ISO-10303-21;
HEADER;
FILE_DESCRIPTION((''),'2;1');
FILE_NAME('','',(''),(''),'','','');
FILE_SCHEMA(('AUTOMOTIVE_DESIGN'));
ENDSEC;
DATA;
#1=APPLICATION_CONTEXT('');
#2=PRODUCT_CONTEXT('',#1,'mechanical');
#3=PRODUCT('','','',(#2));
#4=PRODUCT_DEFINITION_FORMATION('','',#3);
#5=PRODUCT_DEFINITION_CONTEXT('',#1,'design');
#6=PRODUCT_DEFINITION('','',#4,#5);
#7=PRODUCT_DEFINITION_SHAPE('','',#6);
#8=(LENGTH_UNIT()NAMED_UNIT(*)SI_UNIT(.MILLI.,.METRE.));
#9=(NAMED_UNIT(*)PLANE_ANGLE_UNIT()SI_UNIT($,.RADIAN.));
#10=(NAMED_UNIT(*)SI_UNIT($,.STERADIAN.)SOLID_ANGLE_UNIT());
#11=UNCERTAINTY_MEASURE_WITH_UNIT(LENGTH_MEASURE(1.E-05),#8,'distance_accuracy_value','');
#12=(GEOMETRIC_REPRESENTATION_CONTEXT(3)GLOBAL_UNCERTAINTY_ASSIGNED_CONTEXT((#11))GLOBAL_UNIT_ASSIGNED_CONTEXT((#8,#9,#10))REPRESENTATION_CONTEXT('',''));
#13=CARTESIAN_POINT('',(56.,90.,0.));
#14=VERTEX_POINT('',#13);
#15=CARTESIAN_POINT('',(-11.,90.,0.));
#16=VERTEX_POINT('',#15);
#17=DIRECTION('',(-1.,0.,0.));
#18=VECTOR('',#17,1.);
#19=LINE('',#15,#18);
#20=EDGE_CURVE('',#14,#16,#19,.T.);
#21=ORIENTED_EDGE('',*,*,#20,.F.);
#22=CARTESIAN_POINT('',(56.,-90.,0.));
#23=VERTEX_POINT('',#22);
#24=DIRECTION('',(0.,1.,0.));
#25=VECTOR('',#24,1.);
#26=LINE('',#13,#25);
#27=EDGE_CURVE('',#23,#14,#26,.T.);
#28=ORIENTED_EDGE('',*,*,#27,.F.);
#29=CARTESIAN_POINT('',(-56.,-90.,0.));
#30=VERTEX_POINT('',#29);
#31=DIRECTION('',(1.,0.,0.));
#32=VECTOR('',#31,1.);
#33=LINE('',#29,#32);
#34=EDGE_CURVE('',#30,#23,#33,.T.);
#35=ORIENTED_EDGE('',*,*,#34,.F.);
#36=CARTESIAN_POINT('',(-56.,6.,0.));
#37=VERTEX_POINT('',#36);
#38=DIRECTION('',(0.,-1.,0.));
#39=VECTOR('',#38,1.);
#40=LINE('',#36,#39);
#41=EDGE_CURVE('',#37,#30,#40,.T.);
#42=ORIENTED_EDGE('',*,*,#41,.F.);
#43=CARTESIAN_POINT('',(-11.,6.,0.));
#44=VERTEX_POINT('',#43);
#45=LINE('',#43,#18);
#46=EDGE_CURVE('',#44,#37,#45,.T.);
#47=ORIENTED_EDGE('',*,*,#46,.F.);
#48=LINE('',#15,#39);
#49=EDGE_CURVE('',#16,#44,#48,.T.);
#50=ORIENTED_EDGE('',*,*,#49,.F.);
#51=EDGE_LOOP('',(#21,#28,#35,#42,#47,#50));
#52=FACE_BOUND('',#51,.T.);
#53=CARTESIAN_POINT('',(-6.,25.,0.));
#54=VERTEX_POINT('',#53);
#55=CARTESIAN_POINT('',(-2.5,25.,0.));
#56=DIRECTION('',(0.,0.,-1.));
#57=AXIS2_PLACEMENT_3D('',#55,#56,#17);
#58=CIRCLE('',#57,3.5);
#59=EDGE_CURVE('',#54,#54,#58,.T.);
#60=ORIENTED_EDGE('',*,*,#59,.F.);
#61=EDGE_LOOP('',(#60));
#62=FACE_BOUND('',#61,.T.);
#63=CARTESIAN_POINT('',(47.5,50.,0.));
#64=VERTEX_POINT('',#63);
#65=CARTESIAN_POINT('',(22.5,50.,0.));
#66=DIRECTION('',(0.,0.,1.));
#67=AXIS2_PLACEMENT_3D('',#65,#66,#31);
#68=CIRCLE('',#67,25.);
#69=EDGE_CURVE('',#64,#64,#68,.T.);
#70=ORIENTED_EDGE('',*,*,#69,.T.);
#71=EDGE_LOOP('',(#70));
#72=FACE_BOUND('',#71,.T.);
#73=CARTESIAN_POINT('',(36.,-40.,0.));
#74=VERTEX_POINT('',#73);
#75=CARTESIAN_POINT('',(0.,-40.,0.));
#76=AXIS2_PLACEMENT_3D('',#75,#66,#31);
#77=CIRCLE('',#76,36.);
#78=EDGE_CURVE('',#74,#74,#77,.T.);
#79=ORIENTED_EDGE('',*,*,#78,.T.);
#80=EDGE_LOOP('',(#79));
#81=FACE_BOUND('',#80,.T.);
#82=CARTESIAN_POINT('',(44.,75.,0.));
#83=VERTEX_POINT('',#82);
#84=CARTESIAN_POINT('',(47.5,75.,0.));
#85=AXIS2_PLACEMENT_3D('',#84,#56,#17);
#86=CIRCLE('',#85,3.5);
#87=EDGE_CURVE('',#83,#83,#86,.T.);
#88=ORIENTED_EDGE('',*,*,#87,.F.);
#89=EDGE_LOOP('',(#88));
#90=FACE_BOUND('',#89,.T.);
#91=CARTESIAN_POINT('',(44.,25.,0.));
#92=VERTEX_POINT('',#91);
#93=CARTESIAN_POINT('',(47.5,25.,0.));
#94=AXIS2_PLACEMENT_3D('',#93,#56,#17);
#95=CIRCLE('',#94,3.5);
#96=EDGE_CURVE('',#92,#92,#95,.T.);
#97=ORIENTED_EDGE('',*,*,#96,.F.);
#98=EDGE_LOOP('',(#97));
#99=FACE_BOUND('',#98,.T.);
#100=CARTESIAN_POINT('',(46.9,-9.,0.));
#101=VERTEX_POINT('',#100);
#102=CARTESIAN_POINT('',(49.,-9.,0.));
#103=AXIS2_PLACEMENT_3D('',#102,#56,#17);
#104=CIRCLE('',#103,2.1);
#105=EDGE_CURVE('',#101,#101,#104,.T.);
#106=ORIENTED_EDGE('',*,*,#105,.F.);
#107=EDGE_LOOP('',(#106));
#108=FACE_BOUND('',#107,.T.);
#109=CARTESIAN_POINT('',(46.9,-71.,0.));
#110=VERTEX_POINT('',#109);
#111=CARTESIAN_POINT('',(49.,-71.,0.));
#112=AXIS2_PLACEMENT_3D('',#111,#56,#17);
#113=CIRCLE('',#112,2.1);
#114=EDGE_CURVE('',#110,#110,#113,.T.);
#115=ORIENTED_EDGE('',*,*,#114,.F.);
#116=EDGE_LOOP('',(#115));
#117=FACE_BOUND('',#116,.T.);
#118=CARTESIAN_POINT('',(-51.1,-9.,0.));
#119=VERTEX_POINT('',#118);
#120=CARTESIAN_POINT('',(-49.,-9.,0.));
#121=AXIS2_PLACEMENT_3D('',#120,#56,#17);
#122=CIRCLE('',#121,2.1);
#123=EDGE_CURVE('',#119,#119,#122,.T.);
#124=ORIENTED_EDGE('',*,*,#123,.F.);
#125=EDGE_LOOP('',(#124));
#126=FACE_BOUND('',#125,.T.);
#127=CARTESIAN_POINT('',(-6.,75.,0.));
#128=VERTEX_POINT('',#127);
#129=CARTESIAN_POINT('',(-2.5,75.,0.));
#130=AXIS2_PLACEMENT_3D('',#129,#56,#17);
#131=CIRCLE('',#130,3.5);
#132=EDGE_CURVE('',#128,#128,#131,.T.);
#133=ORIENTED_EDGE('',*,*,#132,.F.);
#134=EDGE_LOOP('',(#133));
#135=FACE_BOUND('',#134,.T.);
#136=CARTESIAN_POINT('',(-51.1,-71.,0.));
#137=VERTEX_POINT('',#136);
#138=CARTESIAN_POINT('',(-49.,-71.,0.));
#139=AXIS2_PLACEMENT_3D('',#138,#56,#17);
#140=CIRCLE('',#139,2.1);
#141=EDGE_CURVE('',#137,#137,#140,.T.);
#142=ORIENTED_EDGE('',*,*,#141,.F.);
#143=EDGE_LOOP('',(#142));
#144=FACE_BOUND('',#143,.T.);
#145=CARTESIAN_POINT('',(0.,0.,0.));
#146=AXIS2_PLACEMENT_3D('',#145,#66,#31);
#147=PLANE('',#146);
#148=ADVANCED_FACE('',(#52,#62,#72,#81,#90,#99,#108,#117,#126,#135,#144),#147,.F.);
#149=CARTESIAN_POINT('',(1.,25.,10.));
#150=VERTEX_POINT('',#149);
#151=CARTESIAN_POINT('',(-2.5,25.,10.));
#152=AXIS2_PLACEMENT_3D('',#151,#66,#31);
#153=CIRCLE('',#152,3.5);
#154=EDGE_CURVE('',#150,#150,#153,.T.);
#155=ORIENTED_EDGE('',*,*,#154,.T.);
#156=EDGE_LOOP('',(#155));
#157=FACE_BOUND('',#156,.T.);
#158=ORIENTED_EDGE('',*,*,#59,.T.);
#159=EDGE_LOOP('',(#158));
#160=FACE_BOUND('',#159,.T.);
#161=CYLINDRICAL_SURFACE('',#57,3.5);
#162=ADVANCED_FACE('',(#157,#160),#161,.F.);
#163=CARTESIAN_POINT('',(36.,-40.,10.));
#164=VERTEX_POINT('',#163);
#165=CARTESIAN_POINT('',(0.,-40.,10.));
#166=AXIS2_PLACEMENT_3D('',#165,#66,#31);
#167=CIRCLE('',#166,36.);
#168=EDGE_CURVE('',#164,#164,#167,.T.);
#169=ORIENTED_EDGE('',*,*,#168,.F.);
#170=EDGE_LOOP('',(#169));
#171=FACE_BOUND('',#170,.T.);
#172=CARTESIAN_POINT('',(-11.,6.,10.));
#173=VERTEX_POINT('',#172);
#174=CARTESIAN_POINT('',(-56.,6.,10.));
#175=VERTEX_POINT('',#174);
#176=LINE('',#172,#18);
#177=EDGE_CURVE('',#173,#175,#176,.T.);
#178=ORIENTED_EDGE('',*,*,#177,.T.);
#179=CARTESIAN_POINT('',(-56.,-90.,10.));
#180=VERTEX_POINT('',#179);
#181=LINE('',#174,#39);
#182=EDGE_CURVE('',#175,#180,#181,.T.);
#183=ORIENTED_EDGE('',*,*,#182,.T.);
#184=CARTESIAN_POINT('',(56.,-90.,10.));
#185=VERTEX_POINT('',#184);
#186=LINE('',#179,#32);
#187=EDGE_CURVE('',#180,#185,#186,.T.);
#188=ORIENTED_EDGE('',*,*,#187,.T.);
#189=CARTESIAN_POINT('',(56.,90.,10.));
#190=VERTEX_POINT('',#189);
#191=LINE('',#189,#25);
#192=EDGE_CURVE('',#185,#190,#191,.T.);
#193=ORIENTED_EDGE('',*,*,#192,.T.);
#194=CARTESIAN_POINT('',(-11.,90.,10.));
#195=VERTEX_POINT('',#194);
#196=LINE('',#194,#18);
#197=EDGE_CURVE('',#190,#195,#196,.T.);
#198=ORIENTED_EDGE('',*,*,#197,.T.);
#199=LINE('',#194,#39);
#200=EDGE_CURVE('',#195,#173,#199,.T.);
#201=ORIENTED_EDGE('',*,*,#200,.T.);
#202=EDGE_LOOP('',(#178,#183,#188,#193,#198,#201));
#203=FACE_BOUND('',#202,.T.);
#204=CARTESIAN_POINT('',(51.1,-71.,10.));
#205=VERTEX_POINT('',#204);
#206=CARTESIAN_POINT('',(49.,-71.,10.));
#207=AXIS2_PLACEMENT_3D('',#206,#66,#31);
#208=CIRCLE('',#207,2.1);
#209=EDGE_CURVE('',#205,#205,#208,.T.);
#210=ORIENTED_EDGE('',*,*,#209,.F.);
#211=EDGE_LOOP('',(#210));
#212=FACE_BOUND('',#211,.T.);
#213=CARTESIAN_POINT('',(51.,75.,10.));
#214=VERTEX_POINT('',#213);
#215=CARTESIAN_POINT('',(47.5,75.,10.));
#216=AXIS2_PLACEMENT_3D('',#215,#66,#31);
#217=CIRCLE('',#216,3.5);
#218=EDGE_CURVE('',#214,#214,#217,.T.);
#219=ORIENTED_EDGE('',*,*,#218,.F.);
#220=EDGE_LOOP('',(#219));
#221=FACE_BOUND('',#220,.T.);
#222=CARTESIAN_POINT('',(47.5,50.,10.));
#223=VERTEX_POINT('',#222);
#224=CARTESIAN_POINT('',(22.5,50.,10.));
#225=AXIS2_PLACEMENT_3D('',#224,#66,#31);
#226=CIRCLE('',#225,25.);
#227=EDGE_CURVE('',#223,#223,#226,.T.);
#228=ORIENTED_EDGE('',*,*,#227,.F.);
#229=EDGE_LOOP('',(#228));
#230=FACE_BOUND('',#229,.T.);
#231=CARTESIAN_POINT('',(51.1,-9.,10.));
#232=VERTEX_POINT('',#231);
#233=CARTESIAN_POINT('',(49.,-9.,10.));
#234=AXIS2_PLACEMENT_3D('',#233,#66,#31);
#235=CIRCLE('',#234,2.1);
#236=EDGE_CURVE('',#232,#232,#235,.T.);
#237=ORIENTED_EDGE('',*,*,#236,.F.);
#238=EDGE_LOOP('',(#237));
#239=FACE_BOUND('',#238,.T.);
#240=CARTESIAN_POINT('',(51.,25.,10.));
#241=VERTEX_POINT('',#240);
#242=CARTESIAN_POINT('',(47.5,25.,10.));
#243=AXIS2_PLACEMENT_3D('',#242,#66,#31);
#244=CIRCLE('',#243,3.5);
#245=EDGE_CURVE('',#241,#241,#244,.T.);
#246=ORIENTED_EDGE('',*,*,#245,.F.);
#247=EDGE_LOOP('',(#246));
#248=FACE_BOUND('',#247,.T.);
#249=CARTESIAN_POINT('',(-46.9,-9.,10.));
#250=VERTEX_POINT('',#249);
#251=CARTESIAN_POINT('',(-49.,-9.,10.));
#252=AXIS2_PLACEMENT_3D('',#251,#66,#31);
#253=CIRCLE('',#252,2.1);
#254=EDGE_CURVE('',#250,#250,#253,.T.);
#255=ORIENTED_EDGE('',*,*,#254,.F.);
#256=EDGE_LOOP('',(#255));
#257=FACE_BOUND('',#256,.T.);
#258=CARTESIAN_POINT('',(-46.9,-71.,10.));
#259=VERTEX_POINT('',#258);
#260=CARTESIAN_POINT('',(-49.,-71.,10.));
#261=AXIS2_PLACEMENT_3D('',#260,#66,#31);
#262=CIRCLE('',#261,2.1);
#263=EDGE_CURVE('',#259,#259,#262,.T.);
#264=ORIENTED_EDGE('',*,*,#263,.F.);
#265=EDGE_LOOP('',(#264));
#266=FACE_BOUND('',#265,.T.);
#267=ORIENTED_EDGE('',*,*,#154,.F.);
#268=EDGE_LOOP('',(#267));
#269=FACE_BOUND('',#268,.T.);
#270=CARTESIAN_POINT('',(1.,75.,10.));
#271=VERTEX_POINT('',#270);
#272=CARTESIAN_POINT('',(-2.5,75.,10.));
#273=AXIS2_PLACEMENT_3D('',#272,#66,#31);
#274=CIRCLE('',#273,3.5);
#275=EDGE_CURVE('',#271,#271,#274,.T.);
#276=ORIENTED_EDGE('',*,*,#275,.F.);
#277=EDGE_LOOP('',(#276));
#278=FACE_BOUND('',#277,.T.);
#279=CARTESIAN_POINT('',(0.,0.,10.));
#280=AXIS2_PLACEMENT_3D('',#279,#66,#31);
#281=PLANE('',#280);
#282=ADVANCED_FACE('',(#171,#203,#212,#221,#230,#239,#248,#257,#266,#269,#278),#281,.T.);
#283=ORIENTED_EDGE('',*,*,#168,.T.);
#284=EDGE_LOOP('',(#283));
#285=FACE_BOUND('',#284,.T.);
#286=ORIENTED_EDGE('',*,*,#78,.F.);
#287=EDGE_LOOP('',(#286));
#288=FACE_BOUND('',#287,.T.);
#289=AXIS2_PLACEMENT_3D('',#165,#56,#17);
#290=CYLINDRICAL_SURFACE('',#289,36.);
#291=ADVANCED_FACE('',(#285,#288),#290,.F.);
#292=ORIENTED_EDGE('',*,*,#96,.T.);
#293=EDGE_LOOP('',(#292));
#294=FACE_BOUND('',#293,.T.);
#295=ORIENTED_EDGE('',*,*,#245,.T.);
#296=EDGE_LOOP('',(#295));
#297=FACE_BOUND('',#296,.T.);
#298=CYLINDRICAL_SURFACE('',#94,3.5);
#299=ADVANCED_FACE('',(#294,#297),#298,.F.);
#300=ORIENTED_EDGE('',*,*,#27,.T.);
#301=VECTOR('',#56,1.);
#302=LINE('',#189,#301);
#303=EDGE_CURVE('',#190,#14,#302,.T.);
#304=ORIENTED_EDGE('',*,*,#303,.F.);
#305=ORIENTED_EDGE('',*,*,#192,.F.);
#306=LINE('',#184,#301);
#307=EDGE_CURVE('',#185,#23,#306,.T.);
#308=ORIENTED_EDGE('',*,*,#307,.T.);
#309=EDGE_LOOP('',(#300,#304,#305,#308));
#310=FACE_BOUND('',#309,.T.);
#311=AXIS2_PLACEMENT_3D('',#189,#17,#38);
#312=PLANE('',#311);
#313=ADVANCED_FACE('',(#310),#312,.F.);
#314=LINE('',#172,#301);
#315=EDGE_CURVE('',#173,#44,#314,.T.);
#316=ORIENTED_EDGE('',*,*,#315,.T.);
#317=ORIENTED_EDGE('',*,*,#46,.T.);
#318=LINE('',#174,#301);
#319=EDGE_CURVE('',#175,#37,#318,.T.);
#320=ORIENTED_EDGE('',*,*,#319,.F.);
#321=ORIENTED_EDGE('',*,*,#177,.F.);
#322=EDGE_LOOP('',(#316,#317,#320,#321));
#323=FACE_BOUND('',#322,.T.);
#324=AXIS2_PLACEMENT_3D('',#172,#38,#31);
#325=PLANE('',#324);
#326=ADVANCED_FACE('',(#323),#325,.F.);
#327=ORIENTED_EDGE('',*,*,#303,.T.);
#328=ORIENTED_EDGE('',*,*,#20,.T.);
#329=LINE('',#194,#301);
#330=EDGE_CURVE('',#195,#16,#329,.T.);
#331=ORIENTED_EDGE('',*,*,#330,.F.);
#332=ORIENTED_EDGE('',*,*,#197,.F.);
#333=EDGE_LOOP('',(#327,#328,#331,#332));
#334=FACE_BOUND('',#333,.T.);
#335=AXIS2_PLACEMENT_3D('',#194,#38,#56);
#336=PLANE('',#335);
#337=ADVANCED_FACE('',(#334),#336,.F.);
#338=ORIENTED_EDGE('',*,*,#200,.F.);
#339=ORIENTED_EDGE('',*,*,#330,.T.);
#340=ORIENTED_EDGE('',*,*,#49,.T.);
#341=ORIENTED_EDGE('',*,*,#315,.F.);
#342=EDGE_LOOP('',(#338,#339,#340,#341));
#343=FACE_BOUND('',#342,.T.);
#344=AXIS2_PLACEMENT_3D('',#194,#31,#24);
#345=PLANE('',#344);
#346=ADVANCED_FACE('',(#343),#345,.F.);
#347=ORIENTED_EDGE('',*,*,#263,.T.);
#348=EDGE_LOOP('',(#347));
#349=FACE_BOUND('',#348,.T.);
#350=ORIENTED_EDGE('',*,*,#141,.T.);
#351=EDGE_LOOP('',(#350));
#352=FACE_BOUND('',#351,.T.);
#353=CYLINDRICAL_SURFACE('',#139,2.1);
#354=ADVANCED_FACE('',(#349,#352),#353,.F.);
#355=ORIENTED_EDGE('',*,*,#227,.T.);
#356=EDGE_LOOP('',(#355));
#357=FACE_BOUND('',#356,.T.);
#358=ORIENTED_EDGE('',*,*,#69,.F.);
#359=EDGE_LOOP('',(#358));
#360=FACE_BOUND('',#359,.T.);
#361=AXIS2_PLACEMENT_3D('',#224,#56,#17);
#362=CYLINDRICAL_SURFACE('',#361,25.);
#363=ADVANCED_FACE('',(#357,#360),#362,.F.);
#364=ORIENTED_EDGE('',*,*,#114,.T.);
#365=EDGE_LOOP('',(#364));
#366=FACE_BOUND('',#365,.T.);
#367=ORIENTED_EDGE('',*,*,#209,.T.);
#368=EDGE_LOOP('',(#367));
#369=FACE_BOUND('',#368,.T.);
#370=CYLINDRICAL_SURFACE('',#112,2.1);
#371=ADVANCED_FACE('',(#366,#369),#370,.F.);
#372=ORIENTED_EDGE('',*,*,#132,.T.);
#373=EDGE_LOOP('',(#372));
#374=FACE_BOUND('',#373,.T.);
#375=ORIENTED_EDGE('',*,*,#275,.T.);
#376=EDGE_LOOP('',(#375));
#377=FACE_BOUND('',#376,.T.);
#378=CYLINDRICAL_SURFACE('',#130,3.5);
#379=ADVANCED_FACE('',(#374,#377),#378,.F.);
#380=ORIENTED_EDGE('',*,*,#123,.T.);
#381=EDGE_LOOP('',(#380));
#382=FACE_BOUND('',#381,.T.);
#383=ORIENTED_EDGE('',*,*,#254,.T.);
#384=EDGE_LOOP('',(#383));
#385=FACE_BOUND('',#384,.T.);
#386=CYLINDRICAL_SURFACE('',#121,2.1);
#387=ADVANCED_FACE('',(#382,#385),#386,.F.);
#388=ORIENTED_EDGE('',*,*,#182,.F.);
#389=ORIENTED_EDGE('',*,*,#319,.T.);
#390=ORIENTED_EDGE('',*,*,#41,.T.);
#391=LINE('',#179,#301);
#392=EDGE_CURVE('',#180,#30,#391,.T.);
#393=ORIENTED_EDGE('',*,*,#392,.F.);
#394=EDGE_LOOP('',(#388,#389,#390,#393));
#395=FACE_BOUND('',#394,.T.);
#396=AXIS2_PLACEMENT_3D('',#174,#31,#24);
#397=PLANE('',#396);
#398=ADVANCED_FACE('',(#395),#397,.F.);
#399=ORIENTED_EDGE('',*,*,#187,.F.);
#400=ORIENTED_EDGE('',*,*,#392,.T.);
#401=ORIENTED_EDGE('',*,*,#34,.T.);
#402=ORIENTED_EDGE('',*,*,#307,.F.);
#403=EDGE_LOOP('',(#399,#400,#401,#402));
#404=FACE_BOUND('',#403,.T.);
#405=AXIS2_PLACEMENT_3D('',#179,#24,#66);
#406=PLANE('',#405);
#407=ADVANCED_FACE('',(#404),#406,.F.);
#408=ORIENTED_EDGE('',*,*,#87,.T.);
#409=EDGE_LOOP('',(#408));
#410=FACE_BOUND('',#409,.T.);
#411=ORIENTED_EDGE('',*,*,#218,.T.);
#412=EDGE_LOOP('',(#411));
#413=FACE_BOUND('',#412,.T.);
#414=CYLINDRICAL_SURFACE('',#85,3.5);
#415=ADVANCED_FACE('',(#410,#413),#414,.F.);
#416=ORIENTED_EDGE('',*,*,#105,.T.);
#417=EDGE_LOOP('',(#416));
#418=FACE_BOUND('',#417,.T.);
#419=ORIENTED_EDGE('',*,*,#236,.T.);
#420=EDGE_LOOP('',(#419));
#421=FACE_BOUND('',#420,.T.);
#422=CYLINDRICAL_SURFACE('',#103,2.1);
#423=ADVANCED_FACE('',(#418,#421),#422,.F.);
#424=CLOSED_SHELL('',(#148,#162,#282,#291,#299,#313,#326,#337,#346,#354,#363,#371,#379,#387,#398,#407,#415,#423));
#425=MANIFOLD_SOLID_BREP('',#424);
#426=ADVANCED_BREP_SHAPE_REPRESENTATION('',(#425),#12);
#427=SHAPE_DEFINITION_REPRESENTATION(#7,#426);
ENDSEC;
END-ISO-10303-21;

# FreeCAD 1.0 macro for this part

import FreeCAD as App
import Part
import Sketcher
from FreeCAD import Vector

doc = App.newDocument("Part")
body = doc.addObject("PartDesign::Body", "Body")

# Sketch on XY plane
sketch1 = body.newObject("Sketcher::SketchObject", "Sketch")
sketch1.AttachmentSupport = (doc.getObject("XY_Plane"), [""])
sketch1.MapMode = "FlatFace"
sketch1.addGeometry(Part.LineSegment(Vector(56, 90, 0), Vector(-11, 90, 0)), False)
sketch1.addGeometry(Part.LineSegment(Vector(-11, 90, 0), Vector(-11, 6, 0)), False)
sketch1.addGeometry(Part.LineSegment(Vector(-11, 6, 0), Vector(-56, 6, 0)), False)
sketch1.addGeometry(Part.LineSegment(Vector(-56, 6, 0), Vector(-56, -90, 0)), False)
sketch1.addGeometry(Part.LineSegment(Vector(-56, -90, 0), Vector(56, -90, 0)), False)
sketch1.addGeometry(Part.LineSegment(Vector(56, -90, 0), Vector(56, 90, 0)), False)
sketch1.addGeometry(Part.Circle(Vector(0, -40, 0), Vector(0, 0, 1), 36), False)
sketch1.addGeometry(Part.Circle(Vector(22.5, 50, 0), Vector(0, 0, 1), 25), False)
sketch1.addConstraint(Sketcher.Constraint("Coincident", 0, 2, 1, 1))
sketch1.addConstraint(Sketcher.Constraint("Coincident", 1, 2, 2, 1))
sketch1.addConstraint(Sketcher.Constraint("Coincident", 2, 2, 3, 1))
sketch1.addConstraint(Sketcher.Constraint("Coincident", 3, 2, 4, 1))
sketch1.addConstraint(Sketcher.Constraint("Coincident", 4, 2, 5, 1))
sketch1.addConstraint(Sketcher.Constraint("Coincident", 5, 2, 0, 1))
sketch1.addConstraint(Sketcher.Constraint("Horizontal", 0))
sketch1.addConstraint(Sketcher.Constraint("Vertical", 1))
sketch1.addConstraint(Sketcher.Constraint("Horizontal", 2))
sketch1.addConstraint(Sketcher.Constraint("Vertical", 3))
sketch1.addConstraint(Sketcher.Constraint("Horizontal", 4))
sketch1.addConstraint(Sketcher.Constraint("Vertical", 5))
sketch1.addConstraint(Sketcher.Constraint("Symmetric", 3, 2, 5, 2, -1, 1))
sketch1.addConstraint(Sketcher.Constraint("PointOnObject", 6, 3, -2))
sketch1.addConstraint(Sketcher.Constraint("Diameter", 6, 72.0))
sketch1.addConstraint(Sketcher.Constraint("Diameter", 7, 50.0))
sketch1.addConstraint(Sketcher.Constraint("DistanceX", 0, 2, 0, 1, 67.0))
sketch1.addConstraint(Sketcher.Constraint("DistanceX", 2, 2, 2, 1, 45.0))
sketch1.addConstraint(Sketcher.Constraint("DistanceY", 1, 2, 1, 1, 84.0))
sketch1.addConstraint(Sketcher.Constraint("DistanceY", 3, 2, 3, 1, 96.0))
sketch1.addConstraint(Sketcher.Constraint("DistanceY", 6, 3, -1, 1, 40.0))
sketch1.addConstraint(Sketcher.Constraint("DistanceY", -1, 1, 7, 3, 50.0))
sketch1.addConstraint(Sketcher.Constraint("DistanceX", -1, 1, 7, 3, 22.5))
pad1 = body.newObject("PartDesign::Pad", "Pad")
pad1.Profile = sketch1
pad1.Length = 10

# Sketch on XY plane
sketch2 = body.newObject("Sketcher::SketchObject", "Sketch001")
sketch2.AttachmentSupport = (doc.getObject("XY_Plane"), [""])
sketch2.MapMode = "FlatFace"
sketch2.addGeometry(Part.Circle(Vector(49, -9, 0), Vector(0, 0, 1), 2.1), False)
sketch2.addGeometry(Part.Circle(Vector(-49, -9, 0), Vector(0, 0, 1), 2.1), False)
sketch2.addGeometry(Part.Circle(Vector(-49, -71, 0), Vector(0, 0, 1), 2.1), False)
sketch2.addGeometry(Part.Circle(Vector(49, -71, 0), Vector(0, 0, 1), 2.1), False)
sketch2.addConstraint(Sketcher.Constraint("Equal", 0, 1))
sketch2.addConstraint(Sketcher.Constraint("Equal", 1, 2))
sketch2.addConstraint(Sketcher.Constraint("Equal", 2, 3))
sketch2.addConstraint(Sketcher.Constraint("Symmetric", 0, 3, 1, 3, -2))
sketch2.addConstraint(Sketcher.Constraint("Symmetric", 2, 3, 3, 3, -2))
sketch2.addConstraint(Sketcher.Constraint("Vertical", 1, 3, 2, 3))
sketch2.addConstraint(Sketcher.Constraint("Diameter", 0, 4.2))
sketch2.addConstraint(Sketcher.Constraint("DistanceX", -1, 1, 0, 3, 49.0))
sketch2.addConstraint(Sketcher.Constraint("DistanceY", 0, 3, -1, 1, 9.0))
sketch2.addConstraint(Sketcher.Constraint("DistanceY", 2, 3, -1, 1, 71.0))
doc.recompute()
hole = body.newObject("PartDesign::Hole", "Hole")
hole.Profile = sketch2
hole.ThreadType = "None"
hole.Diameter = 4.2
hole.DepthType = "Dimension"
hole.Depth = 12.4
hole.DrillPoint = "Angled"
hole.DrillPointAngle = 118
hole.Reversed = True

# Sketch on XY plane
sketch3 = body.newObject("Sketcher::SketchObject", "Sketch002")
sketch3.AttachmentSupport = (doc.getObject("XY_Plane"), [""])
sketch3.MapMode = "FlatFace"
sketch3.addGeometry(Part.Circle(Vector(47.5, 25, 0), Vector(0, 0, 1), 3.5), False)
sketch3.addGeometry(Part.Circle(Vector(47.5, 75, 0), Vector(0, 0, 1), 3.5), False)
sketch3.addGeometry(Part.Circle(Vector(-2.5, 75, 0), Vector(0, 0, 1), 3.5), False)
sketch3.addGeometry(Part.Circle(Vector(-2.5, 25, 0), Vector(0, 0, 1), 3.5), False)
sketch3.addConstraint(Sketcher.Constraint("Equal", 0, 1))
sketch3.addConstraint(Sketcher.Constraint("Equal", 1, 2))
sketch3.addConstraint(Sketcher.Constraint("Equal", 2, 3))
sketch3.addConstraint(Sketcher.Constraint("Horizontal", 1, 3, 2, 3))
sketch3.addConstraint(Sketcher.Constraint("Horizontal", 0, 3, 3, 3))
sketch3.addConstraint(Sketcher.Constraint("Vertical", 0, 3, 1, 3))
sketch3.addConstraint(Sketcher.Constraint("Vertical", 2, 3, 3, 3))
sketch3.addConstraint(Sketcher.Constraint("Diameter", 0, 7.0))
sketch3.addConstraint(Sketcher.Constraint("DistanceY", -1, 1, 0, 3, 25.0))
sketch3.addConstraint(Sketcher.Constraint("DistanceY", -1, 1, 1, 3, 75.0))
sketch3.addConstraint(Sketcher.Constraint("DistanceX", 2, 3, 1, 3, 50.0))
sketch3.addConstraint(Sketcher.Constraint("DistanceX", -1, 1, 0, 3, 47.5))
doc.recompute()
hole2 = body.newObject("PartDesign::Hole", "Hole001")
hole2.Profile = sketch3
hole2.ThreadType = "None"
hole2.Diameter = 7
hole2.DepthType = "Dimension"
hole2.Depth = 12.4
hole2.DrillPoint = "Angled"
hole2.DrillPointAngle = 118
hole2.Reversed = True

doc.recompute()
